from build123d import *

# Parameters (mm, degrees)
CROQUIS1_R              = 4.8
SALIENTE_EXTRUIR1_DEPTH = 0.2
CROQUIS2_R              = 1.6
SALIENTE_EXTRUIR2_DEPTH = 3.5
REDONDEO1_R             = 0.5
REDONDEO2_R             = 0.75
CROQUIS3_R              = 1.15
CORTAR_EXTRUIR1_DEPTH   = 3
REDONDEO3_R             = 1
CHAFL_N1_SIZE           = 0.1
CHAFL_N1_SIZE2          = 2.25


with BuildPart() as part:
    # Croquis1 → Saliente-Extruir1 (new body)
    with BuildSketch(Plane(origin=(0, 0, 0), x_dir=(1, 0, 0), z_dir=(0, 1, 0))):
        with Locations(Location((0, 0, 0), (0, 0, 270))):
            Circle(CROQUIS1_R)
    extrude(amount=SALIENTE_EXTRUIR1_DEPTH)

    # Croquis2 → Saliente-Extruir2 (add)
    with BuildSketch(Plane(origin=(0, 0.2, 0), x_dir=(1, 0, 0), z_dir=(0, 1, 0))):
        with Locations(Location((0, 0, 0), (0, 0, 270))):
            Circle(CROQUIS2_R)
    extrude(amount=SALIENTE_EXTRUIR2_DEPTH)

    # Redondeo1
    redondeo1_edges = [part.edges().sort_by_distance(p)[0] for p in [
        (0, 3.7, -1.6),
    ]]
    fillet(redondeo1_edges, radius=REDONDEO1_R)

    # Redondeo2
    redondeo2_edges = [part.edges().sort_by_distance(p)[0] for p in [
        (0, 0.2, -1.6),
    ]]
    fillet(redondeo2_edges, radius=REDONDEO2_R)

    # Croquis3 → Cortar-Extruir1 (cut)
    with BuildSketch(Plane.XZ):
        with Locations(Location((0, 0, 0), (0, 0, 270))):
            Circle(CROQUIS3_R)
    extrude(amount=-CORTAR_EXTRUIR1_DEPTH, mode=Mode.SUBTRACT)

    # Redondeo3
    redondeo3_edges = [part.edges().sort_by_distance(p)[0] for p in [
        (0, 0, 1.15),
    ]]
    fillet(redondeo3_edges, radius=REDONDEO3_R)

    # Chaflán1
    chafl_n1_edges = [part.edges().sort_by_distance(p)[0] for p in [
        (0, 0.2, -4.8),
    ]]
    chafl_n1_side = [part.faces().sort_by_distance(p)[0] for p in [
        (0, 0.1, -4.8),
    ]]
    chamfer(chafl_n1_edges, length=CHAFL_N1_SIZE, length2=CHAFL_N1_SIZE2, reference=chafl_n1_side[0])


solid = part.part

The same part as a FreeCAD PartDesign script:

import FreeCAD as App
import Part
import Sketcher

V = App.Vector


def edges_at(feature, points):
    """Names of the edges that pass closest to the given points."""
    edges = feature.Shape.Edges
    near = lambda p: min(range(len(edges)), key=lambda i: edges[i].distToShape(Part.Vertex(*p))[0])
    return sorted({f"Edge{near(p) + 1}" for p in points})

doc = App.newDocument("Part")
body = doc.addObject("PartDesign::Body", "Body")

# Sketch on XZ plane
sketch1 = body.newObject("Sketcher::SketchObject", "Sketch")
sketch1.AttachmentSupport = (doc.getObject("XZ_Plane"), [""])
sketch1.MapMode = "FlatFace"
sketch1.addGeometry(Part.Circle(V(0, 0, 0), V(0, 0, 1), 4.8), False)
sketch1.addConstraint(Sketcher.Constraint("Coincident", 0, 3, -1, 1))
sketch1.addConstraint(Sketcher.Constraint("Diameter", 0, 9.6))
pad1 = body.newObject("PartDesign::Pad", "Pad")
pad1.Profile = sketch1
pad1.Length = 0.2
pad1.Reversed = True

# Sketch on XZ plane
sketch2 = body.newObject("Sketcher::SketchObject", "Sketch001")
sketch2.AttachmentSupport = (doc.getObject("XZ_Plane"), [""])
sketch2.MapMode = "FlatFace"
sketch2.AttachmentOffset = App.Placement(V(0, 0, -0.2), App.Rotation())
sketch2.addGeometry(Part.Circle(V(0, 0, 0), V(0, 0, 1), 1.6), False)
sketch2.addConstraint(Sketcher.Constraint("Coincident", 0, 3, -1, 1))
sketch2.addConstraint(Sketcher.Constraint("Diameter", 0, 3.2))
pad2 = body.newObject("PartDesign::Pad", "Pad001")
pad2.Profile = sketch2
pad2.Length = 3.5
pad2.Reversed = True
doc.recompute()

fillet = body.newObject("PartDesign::Fillet", "Fillet")
fillet.Base = (pad2, edges_at(pad2, [(0, 3.7, -1.6)]))
fillet.Radius = 0.5
doc.recompute()

fillet2 = body.newObject("PartDesign::Fillet", "Fillet001")
fillet2.Base = (fillet, edges_at(fillet, [(0, 0.2, -1.6)]))
fillet2.Radius = 0.75

# Sketch on XZ plane
sketch3 = body.newObject("Sketcher::SketchObject", "Sketch002")
sketch3.AttachmentSupport = (doc.getObject("XZ_Plane"), [""])
sketch3.MapMode = "FlatFace"
sketch3.addGeometry(Part.Circle(V(0, 0, 0), V(0, 0, 1), 1.1), False)
sketch3.addConstraint(Sketcher.Constraint("Coincident", 0, 3, -1, 1))
sketch3.addConstraint(Sketcher.Constraint("Diameter", 0, 2.3))
pocket1 = body.newObject("PartDesign::Pocket", "Pocket")
pocket1.Profile = sketch3
pocket1.Length = 3
doc.recompute()

fillet3 = body.newObject("PartDesign::Fillet", "Fillet002")
fillet3.Base = (pocket1, edges_at(pocket1, [(0, 0, 1.15)]))
fillet3.Radius = 1
doc.recompute()

chamfer = body.newObject("PartDesign::Chamfer", "Chamfer")
chamfer.Base = (fillet3, edges_at(fillet3, [(0, 0.2, -4.8)]))
chamfer.ChamferType = "Two distances"
chamfer.Size = 0.1
chamfer.Size2 = 2.25

doc.recompute()
